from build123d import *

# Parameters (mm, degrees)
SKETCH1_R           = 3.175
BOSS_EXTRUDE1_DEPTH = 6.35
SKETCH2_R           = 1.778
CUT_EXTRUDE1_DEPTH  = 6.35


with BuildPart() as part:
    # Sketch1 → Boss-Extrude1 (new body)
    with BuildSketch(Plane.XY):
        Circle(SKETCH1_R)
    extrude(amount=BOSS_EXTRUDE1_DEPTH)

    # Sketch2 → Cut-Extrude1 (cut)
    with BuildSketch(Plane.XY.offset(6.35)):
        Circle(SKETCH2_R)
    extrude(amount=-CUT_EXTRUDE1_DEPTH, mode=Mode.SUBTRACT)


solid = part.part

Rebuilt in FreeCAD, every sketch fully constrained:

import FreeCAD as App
import Part
import Sketcher
Q = App.Units.Quantity

doc = App.newDocument("Part")
body = doc.addObject("PartDesign::Body", "Body")

sketch1 = body.newObject("Sketcher::SketchObject", "Sketch")
sketch1.AttachmentSupport = (doc.getObject("XY_Plane"), [""])
sketch1.MapMode = "FlatFace"
sketch1.addGeometry(Part.Circle(App.Vector(0, 0, 0), App.Vector(0, 0, 1), 3.2), False)
sketch1.addConstraint([
    Sketcher.Constraint("Coincident", 0, 3, -1, 1),
    Sketcher.Constraint("Diameter", 0, Q("0.25 in")),
])
pad1 = body.newObject("PartDesign::Pad", "Pad")
pad1.Profile = sketch1
pad1.Length = Q("0.25 in")

sketch2 = body.newObject("Sketcher::SketchObject", "Sketch001")
sketch2.AttachmentSupport = (doc.getObject("XY_Plane"), [""])
sketch2.MapMode = "FlatFace"
sketch2.AttachmentOffset = App.Placement(App.Vector(0, 0, 0.25 * 25.4), App.Rotation())
sketch2.addGeometry(Part.Circle(App.Vector(0, 0, 0), App.Vector(0, 0, 1), 1.8), False)
sketch2.addConstraint([
    Sketcher.Constraint("Coincident", 0, 3, -1, 1),
    Sketcher.Constraint("Diameter", 0, Q("0.14 in")),
])
pocket1 = body.newObject("PartDesign::Pocket", "Pocket")
pocket1.Profile = sketch2
pocket1.Length = Q("0.25 in")

doc.recompute()
